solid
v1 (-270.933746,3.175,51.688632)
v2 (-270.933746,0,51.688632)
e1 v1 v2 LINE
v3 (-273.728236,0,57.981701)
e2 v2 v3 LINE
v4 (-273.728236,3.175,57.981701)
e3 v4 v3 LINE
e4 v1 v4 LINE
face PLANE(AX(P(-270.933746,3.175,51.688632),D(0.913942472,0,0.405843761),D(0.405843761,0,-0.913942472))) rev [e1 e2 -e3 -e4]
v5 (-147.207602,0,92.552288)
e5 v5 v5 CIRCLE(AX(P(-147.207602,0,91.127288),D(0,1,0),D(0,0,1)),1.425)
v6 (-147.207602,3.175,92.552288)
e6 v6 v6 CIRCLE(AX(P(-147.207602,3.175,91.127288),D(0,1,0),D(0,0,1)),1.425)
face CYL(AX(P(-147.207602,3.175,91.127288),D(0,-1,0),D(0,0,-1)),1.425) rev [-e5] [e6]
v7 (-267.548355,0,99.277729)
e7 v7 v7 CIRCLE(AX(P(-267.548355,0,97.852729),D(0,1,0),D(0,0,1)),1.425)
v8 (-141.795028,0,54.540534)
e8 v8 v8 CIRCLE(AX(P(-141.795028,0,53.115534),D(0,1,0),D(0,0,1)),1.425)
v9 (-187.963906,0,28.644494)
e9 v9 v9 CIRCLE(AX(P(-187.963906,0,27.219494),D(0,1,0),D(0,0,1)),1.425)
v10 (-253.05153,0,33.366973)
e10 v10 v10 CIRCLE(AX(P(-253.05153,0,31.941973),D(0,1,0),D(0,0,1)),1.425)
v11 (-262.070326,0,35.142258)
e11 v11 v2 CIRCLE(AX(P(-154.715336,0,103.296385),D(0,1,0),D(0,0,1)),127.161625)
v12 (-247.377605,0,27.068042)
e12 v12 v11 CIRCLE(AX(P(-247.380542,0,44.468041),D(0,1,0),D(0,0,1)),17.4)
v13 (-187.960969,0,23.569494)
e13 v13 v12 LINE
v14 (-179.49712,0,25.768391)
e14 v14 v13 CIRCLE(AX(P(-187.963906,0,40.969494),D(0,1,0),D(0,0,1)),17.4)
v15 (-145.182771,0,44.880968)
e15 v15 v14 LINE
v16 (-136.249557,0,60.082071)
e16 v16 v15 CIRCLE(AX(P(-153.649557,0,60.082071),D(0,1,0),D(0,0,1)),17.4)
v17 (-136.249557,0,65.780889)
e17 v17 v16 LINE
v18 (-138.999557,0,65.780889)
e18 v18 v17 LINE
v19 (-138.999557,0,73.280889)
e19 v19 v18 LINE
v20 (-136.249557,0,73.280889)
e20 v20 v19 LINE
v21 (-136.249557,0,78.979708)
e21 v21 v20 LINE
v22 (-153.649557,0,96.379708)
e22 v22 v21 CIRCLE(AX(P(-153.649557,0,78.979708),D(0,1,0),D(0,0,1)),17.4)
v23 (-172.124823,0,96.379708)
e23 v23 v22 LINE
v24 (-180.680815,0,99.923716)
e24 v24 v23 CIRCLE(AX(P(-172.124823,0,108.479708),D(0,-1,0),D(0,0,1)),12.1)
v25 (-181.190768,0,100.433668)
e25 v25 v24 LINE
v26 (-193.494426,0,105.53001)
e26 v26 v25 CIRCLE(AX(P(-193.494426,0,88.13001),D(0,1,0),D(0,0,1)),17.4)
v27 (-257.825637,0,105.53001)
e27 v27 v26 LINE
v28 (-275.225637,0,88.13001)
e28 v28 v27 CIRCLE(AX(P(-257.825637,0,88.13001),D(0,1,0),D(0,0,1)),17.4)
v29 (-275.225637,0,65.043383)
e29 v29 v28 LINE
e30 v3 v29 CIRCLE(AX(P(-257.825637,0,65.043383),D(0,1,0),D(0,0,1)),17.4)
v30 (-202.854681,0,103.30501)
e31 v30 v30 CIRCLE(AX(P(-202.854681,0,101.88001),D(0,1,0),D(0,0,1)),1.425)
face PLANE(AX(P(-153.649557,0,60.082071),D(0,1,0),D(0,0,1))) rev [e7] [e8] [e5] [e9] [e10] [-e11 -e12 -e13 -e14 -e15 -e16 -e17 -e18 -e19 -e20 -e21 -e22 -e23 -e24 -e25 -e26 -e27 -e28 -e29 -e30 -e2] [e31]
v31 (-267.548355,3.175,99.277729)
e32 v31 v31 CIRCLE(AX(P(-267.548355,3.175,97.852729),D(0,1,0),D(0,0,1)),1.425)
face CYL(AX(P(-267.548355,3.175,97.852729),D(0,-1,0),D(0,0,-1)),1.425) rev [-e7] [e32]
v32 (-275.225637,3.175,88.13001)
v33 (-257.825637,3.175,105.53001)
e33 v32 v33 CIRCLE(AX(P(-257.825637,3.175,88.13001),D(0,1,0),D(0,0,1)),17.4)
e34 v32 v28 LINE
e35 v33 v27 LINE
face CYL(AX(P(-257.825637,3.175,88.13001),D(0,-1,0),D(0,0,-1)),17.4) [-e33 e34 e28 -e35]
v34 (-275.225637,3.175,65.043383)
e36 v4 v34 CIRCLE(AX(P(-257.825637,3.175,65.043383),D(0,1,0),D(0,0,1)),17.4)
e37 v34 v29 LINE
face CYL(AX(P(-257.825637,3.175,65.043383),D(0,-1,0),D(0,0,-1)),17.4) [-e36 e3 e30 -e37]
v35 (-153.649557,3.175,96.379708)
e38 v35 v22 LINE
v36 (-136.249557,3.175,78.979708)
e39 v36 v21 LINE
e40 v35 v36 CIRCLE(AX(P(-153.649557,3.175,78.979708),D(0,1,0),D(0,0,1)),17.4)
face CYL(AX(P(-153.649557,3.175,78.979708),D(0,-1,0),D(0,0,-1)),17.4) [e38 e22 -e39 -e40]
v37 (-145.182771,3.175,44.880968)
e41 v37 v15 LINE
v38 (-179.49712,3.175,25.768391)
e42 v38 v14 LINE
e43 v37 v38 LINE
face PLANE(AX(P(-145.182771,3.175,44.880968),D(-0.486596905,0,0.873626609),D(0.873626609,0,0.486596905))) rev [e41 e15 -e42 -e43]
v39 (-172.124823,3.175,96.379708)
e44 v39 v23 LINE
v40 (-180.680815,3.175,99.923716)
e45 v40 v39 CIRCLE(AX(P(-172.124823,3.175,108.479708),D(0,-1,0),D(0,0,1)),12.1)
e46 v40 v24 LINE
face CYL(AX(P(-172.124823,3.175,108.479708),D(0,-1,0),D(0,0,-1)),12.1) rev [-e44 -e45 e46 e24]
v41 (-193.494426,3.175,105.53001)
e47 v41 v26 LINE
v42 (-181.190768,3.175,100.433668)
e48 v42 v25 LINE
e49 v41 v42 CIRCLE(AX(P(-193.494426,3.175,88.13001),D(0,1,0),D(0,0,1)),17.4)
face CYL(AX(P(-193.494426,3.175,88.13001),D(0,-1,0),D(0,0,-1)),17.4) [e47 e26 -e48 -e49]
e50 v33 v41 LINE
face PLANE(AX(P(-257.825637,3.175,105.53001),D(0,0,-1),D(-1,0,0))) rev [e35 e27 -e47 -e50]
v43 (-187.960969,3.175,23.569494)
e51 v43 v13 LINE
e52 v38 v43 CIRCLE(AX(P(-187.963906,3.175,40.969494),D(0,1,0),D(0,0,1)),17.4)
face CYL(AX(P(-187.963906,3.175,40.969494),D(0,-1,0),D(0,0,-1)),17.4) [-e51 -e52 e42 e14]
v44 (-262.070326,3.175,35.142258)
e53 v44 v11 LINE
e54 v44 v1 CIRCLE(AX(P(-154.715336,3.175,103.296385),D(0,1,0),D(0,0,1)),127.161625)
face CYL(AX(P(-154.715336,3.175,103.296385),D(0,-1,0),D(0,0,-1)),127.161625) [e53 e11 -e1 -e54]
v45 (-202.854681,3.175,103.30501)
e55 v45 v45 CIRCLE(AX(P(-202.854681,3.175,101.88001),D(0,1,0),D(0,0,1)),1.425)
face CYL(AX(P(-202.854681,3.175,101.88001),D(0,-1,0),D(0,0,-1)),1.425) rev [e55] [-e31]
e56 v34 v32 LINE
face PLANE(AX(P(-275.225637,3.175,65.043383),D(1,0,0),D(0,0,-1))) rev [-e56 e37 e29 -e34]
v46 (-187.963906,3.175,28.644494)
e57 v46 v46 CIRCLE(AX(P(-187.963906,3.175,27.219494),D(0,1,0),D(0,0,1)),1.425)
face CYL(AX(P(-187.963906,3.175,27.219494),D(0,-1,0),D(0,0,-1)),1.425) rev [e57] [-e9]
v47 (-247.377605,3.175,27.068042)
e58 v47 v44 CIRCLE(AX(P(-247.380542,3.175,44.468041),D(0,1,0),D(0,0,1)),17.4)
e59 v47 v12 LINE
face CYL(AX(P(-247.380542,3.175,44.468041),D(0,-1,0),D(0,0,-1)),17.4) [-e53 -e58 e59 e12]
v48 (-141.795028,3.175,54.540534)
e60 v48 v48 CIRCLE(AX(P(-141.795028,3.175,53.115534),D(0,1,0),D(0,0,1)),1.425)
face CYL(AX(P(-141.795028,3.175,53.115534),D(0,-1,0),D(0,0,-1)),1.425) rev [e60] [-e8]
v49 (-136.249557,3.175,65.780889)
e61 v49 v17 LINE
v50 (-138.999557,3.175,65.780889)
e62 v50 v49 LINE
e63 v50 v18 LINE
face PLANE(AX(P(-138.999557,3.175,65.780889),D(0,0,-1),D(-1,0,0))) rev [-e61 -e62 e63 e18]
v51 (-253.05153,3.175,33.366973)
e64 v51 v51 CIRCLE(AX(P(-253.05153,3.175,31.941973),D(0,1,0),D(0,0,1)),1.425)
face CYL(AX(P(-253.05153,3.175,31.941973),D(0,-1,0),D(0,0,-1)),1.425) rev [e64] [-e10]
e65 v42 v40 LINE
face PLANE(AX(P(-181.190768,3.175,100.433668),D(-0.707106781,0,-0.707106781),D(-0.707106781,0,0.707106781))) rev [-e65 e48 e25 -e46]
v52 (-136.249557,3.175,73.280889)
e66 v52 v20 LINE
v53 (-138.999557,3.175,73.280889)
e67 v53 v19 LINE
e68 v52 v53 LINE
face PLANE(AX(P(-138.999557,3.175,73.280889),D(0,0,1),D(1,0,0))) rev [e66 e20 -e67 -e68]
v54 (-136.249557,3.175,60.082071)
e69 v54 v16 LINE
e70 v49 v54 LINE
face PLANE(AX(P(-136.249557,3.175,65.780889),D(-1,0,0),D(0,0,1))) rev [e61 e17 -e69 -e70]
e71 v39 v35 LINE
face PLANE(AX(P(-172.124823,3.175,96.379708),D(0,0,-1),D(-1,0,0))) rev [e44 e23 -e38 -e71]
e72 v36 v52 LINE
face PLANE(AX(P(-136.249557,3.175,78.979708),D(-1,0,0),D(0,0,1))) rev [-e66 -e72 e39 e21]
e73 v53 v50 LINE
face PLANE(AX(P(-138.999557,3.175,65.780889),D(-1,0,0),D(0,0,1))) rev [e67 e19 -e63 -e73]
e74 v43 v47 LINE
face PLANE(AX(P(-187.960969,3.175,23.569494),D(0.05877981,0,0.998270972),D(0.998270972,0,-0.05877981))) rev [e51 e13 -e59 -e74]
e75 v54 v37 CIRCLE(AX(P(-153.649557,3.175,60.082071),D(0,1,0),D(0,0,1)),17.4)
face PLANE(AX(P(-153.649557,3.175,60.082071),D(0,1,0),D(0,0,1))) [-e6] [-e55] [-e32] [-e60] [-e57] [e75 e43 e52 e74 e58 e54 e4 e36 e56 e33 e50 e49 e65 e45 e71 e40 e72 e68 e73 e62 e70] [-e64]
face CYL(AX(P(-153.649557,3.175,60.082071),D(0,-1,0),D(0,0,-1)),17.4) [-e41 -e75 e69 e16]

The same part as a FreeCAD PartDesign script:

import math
import FreeCAD as App
import Part
import Sketcher

V = App.Vector
Q = App.Units.Quantity

doc = App.newDocument("Part")
body = doc.addObject("PartDesign::Body", "Body")

sketch1 = body.newObject("Sketcher::SketchObject", "Sketch")
sketch1.AttachmentSupport = (doc.getObject("XZ_Plane"), [""])
sketch1.MapMode = "FlatFace"
sketch1.addGeometry([
    Part.LineSegment(V(-145.2, 44.9, 0), V(-179.5, 25.8, 0)),
    Part.ArcOfCircle(Part.Circle(V(-188, 41, 0), V(0, 0, 1), 17.4), math.radians(-90), math.radians(-61)),
    Part.LineSegment(V(-188, 23.6, 0), V(-247.4, 27.1, 0)),
    Part.ArcOfCircle(Part.Circle(V(-247.4, 44.5, 0), V(0, 0, 1), 17.4), math.radians(-148), math.radians(-90)),
    Part.ArcOfCircle(Part.Circle(V(-154.7, 103.3, 0), V(0, 0, 1), 127.2), math.radians(-156.06), math.radians(-147.59)),
    Part.LineSegment(V(-270.9, 51.7, 0), V(-273.7, 58, 0)),
    Part.ArcOfCircle(Part.Circle(V(-257.8, 65, 0), V(0, 0, 1), 17.4), math.radians(-180), math.radians(-156)),
    Part.LineSegment(V(-275.2, 65, 0), V(-275.2, 88.1, 0)),
    Part.ArcOfCircle(Part.Circle(V(-257.8, 88.1, 0), V(0, 0, 1), 17.4), math.radians(90), math.radians(180)),
    Part.LineSegment(V(-257.8, 105.5, 0), V(-193.5, 105.5, 0)),
    Part.ArcOfCircle(Part.Circle(V(-193.5, 88.1, 0), V(0, 0, 1), 17.4), math.radians(45), math.radians(90)),
    Part.LineSegment(V(-181.2, 100.4, 0), V(-180.7, 99.9, 0)),
    Part.ArcOfCircle(Part.Circle(V(-172.1, 108.5, 0), V(0, 0, 1), 12.1), math.radians(-135), math.radians(-90)),
    Part.LineSegment(V(-172.1, 96.4, 0), V(-153.6, 96.4, 0)),
    Part.ArcOfCircle(Part.Circle(V(-153.6, 79, 0), V(0, 0, 1), 17.4), math.radians(0), math.radians(90)),
    Part.LineSegment(V(-136.2, 79, 0), V(-136.2, 73.3, 0)),
    Part.LineSegment(V(-136.2, 73.3, 0), V(-139, 73.3, 0)),
    Part.LineSegment(V(-139, 73.3, 0), V(-139, 65.8, 0)),
    Part.LineSegment(V(-139, 65.8, 0), V(-136.2, 65.8, 0)),
    Part.LineSegment(V(-136.2, 65.8, 0), V(-136.2, 60.1, 0)),
    Part.ArcOfCircle(Part.Circle(V(-153.6, 60.1, 0), V(0, 0, 1), 17.4), math.radians(-61), math.radians(0)),
    Part.Circle(V(-267.5, 97.9, 0), V(0, 0, 1), 1.4),
    Part.Circle(V(-202.9, 101.9, 0), V(0, 0, 1), 1.4),
    Part.Circle(V(-147.2, 91.1, 0), V(0, 0, 1), 1.4),
    Part.Circle(V(-253.1, 31.9, 0), V(0, 0, 1), 1.4),
    Part.Circle(V(-141.8, 53.1, 0), V(0, 0, 1), 1.4),
    Part.Circle(V(-188, 27.2, 0), V(0, 0, 1), 1.4),
], False)
sketch1.addConstraint([
    Sketcher.Constraint("Tangent", 0, 2, 1, 2),
    Sketcher.Constraint("Coincident", 1, 1, 2, 1),
    Sketcher.Constraint("Coincident", 2, 2, 3, 2),
    Sketcher.Constraint("Tangent", 3, 1, 4, 2),
    Sketcher.Constraint("Tangent", 4, 1, 5, 1),
    Sketcher.Constraint("Tangent", 5, 2, 6, 2),
    Sketcher.Constraint("Tangent", 6, 1, 7, 1),
    Sketcher.Constraint("Tangent", 7, 2, 8, 2),
    Sketcher.Constraint("Tangent", 8, 1, 9, 1),
    Sketcher.Constraint("Tangent", 9, 2, 10, 2),
    Sketcher.Constraint("Tangent", 10, 1, 11, 1),
    Sketcher.Constraint("Tangent", 11, 2, 12, 1),
    Sketcher.Constraint("Tangent", 12, 2, 13, 1),
    Sketcher.Constraint("Tangent", 13, 2, 14, 2),
    Sketcher.Constraint("Tangent", 14, 1, 15, 1),
    Sketcher.Constraint("Coincident", 15, 2, 16, 1),
    Sketcher.Constraint("Coincident", 16, 2, 17, 1),
    Sketcher.Constraint("Coincident", 17, 2, 18, 1),
    Sketcher.Constraint("Coincident", 18, 2, 19, 1),
    Sketcher.Constraint("Tangent", 19, 2, 20, 2),
    Sketcher.Constraint("Tangent", 20, 1, 0, 1),
    Sketcher.Constraint("Vertical", 7),
    Sketcher.Constraint("Horizontal", 9),
    Sketcher.Constraint("Horizontal", 13),
    Sketcher.Constraint("Vertical", 15),
    Sketcher.Constraint("Horizontal", 16),
    Sketcher.Constraint("Vertical", 17),
    Sketcher.Constraint("Horizontal", 18),
    Sketcher.Constraint("Vertical", 19),
    Sketcher.Constraint("Equal", 1, 3),
    Sketcher.Constraint("Equal", 3, 6),
    Sketcher.Constraint("Equal", 6, 8),
    Sketcher.Constraint("Equal", 8, 10),
    Sketcher.Constraint("Equal", 10, 14),
    Sketcher.Constraint("Equal", 14, 20),
    Sketcher.Constraint("Equal", 21, 22),
    Sketcher.Constraint("Equal", 22, 23),
    Sketcher.Constraint("Equal", 23, 24),
    Sketcher.Constraint("Equal", 24, 25),
    Sketcher.Constraint("Equal", 25, 26),
    Sketcher.Constraint("Vertical", 14, 3, 20, 3),
    Sketcher.Constraint("Vertical", 1, 3, 26, 3),
    Sketcher.Constraint("Equal", 15, 19),
    Sketcher.Constraint("Radius", 1, Q("17.4 mm")),
    Sketcher.Constraint("Radius", 12, Q("12.1 mm")),
    Sketcher.Constraint("Diameter", 21, Q("2.85 mm")),
    Sketcher.Constraint("Angle", 11, Q("-45 deg")),
    Sketcher.Constraint("DistanceY", 17, 2, 17, 1, Q("7.5 mm")),
    Sketcher.Constraint("DistanceX", 16, 2, 16, 1, Q("2.75 mm")),
    Sketcher.Constraint("DistanceY", 10, 3, 22, 3, Q("13.75 mm")),
    Sketcher.Constraint("DistanceY", 26, 3, 1, 3, Q("13.75 mm")),
    Sketcher.Constraint("Radius", 4, Q("127.161625 mm")),
    Sketcher.Constraint("DistanceY", 6, 3, 4, 3, Q("38.253002 mm")),
    Sketcher.Constraint("DistanceX", 9, 1, 9, 2, Q("64.331211 mm")),
    Sketcher.Constraint("DistanceY", 15, 2, 15, 1, Q("5.698818 mm")),
    Sketcher.Constraint("DistanceY", -1, 1, 5, 2, Q("57.981701 mm")),
    Sketcher.Constraint("DistanceX", 6, 3, 4, 3, Q("103.110301 mm")),
    Sketcher.Constraint("DistanceX", 2, 2, 26, 3, Q("59.413698 mm")),
    Sketcher.Constraint("DistanceY", 15, 2, 23, 3, Q("17.846399 mm")),
    Sketcher.Constraint("Distance", 0, Q("39.27805 mm")),
    Sketcher.Constraint("Distance", 11, Q("0.721182 mm")),
    Sketcher.Constraint("DistanceX", 13, 1, 13, 2, Q("18.475266 mm")),
    Sketcher.Constraint("DistanceY", 7, 1, 7, 2, Q("23.086627 mm")),
    Sketcher.Constraint("DistanceX", 3, 3, -1, 1, Q("247.380542 mm")),
    Sketcher.Constraint("DistanceY", -1, 1, 3, 3, Q("44.468041 mm")),
    Sketcher.Constraint("DistanceY", -1, 1, 21, 3, Q("97.852729 mm")),
    Sketcher.Constraint("DistanceX", 22, 3, -1, 1, Q("202.854681 mm")),
    Sketcher.Constraint("DistanceX", 24, 3, -1, 1, Q("253.05153 mm")),
    Sketcher.Constraint("DistanceX", 0, 2, -1, 1, Q("179.49712 mm")),
    Sketcher.Constraint("DistanceX", 1, 1, -1, 1, Q("187.960969 mm")),
    Sketcher.Constraint("DistanceX", 21, 3, 8, 3, Q("9.722718 mm")),
    Sketcher.Constraint("DistanceX", 12, 3, 23, 3, Q("24.917221 mm")),
    Sketcher.Constraint("DistanceY", 24, 3, 3, 3, Q("12.526069 mm")),
    Sketcher.Constraint("DistanceX", 20, 3, 25, 3, Q("11.854529 mm")),
    Sketcher.Constraint("DistanceY", 1, 3, 25, 3, Q("12.146041 mm")),
])
pad1 = body.newObject("PartDesign::Pad", "Pad")
pad1.Profile = sketch1
pad1.Length = 3.175
pad1.Reversed = True

doc.recompute()
